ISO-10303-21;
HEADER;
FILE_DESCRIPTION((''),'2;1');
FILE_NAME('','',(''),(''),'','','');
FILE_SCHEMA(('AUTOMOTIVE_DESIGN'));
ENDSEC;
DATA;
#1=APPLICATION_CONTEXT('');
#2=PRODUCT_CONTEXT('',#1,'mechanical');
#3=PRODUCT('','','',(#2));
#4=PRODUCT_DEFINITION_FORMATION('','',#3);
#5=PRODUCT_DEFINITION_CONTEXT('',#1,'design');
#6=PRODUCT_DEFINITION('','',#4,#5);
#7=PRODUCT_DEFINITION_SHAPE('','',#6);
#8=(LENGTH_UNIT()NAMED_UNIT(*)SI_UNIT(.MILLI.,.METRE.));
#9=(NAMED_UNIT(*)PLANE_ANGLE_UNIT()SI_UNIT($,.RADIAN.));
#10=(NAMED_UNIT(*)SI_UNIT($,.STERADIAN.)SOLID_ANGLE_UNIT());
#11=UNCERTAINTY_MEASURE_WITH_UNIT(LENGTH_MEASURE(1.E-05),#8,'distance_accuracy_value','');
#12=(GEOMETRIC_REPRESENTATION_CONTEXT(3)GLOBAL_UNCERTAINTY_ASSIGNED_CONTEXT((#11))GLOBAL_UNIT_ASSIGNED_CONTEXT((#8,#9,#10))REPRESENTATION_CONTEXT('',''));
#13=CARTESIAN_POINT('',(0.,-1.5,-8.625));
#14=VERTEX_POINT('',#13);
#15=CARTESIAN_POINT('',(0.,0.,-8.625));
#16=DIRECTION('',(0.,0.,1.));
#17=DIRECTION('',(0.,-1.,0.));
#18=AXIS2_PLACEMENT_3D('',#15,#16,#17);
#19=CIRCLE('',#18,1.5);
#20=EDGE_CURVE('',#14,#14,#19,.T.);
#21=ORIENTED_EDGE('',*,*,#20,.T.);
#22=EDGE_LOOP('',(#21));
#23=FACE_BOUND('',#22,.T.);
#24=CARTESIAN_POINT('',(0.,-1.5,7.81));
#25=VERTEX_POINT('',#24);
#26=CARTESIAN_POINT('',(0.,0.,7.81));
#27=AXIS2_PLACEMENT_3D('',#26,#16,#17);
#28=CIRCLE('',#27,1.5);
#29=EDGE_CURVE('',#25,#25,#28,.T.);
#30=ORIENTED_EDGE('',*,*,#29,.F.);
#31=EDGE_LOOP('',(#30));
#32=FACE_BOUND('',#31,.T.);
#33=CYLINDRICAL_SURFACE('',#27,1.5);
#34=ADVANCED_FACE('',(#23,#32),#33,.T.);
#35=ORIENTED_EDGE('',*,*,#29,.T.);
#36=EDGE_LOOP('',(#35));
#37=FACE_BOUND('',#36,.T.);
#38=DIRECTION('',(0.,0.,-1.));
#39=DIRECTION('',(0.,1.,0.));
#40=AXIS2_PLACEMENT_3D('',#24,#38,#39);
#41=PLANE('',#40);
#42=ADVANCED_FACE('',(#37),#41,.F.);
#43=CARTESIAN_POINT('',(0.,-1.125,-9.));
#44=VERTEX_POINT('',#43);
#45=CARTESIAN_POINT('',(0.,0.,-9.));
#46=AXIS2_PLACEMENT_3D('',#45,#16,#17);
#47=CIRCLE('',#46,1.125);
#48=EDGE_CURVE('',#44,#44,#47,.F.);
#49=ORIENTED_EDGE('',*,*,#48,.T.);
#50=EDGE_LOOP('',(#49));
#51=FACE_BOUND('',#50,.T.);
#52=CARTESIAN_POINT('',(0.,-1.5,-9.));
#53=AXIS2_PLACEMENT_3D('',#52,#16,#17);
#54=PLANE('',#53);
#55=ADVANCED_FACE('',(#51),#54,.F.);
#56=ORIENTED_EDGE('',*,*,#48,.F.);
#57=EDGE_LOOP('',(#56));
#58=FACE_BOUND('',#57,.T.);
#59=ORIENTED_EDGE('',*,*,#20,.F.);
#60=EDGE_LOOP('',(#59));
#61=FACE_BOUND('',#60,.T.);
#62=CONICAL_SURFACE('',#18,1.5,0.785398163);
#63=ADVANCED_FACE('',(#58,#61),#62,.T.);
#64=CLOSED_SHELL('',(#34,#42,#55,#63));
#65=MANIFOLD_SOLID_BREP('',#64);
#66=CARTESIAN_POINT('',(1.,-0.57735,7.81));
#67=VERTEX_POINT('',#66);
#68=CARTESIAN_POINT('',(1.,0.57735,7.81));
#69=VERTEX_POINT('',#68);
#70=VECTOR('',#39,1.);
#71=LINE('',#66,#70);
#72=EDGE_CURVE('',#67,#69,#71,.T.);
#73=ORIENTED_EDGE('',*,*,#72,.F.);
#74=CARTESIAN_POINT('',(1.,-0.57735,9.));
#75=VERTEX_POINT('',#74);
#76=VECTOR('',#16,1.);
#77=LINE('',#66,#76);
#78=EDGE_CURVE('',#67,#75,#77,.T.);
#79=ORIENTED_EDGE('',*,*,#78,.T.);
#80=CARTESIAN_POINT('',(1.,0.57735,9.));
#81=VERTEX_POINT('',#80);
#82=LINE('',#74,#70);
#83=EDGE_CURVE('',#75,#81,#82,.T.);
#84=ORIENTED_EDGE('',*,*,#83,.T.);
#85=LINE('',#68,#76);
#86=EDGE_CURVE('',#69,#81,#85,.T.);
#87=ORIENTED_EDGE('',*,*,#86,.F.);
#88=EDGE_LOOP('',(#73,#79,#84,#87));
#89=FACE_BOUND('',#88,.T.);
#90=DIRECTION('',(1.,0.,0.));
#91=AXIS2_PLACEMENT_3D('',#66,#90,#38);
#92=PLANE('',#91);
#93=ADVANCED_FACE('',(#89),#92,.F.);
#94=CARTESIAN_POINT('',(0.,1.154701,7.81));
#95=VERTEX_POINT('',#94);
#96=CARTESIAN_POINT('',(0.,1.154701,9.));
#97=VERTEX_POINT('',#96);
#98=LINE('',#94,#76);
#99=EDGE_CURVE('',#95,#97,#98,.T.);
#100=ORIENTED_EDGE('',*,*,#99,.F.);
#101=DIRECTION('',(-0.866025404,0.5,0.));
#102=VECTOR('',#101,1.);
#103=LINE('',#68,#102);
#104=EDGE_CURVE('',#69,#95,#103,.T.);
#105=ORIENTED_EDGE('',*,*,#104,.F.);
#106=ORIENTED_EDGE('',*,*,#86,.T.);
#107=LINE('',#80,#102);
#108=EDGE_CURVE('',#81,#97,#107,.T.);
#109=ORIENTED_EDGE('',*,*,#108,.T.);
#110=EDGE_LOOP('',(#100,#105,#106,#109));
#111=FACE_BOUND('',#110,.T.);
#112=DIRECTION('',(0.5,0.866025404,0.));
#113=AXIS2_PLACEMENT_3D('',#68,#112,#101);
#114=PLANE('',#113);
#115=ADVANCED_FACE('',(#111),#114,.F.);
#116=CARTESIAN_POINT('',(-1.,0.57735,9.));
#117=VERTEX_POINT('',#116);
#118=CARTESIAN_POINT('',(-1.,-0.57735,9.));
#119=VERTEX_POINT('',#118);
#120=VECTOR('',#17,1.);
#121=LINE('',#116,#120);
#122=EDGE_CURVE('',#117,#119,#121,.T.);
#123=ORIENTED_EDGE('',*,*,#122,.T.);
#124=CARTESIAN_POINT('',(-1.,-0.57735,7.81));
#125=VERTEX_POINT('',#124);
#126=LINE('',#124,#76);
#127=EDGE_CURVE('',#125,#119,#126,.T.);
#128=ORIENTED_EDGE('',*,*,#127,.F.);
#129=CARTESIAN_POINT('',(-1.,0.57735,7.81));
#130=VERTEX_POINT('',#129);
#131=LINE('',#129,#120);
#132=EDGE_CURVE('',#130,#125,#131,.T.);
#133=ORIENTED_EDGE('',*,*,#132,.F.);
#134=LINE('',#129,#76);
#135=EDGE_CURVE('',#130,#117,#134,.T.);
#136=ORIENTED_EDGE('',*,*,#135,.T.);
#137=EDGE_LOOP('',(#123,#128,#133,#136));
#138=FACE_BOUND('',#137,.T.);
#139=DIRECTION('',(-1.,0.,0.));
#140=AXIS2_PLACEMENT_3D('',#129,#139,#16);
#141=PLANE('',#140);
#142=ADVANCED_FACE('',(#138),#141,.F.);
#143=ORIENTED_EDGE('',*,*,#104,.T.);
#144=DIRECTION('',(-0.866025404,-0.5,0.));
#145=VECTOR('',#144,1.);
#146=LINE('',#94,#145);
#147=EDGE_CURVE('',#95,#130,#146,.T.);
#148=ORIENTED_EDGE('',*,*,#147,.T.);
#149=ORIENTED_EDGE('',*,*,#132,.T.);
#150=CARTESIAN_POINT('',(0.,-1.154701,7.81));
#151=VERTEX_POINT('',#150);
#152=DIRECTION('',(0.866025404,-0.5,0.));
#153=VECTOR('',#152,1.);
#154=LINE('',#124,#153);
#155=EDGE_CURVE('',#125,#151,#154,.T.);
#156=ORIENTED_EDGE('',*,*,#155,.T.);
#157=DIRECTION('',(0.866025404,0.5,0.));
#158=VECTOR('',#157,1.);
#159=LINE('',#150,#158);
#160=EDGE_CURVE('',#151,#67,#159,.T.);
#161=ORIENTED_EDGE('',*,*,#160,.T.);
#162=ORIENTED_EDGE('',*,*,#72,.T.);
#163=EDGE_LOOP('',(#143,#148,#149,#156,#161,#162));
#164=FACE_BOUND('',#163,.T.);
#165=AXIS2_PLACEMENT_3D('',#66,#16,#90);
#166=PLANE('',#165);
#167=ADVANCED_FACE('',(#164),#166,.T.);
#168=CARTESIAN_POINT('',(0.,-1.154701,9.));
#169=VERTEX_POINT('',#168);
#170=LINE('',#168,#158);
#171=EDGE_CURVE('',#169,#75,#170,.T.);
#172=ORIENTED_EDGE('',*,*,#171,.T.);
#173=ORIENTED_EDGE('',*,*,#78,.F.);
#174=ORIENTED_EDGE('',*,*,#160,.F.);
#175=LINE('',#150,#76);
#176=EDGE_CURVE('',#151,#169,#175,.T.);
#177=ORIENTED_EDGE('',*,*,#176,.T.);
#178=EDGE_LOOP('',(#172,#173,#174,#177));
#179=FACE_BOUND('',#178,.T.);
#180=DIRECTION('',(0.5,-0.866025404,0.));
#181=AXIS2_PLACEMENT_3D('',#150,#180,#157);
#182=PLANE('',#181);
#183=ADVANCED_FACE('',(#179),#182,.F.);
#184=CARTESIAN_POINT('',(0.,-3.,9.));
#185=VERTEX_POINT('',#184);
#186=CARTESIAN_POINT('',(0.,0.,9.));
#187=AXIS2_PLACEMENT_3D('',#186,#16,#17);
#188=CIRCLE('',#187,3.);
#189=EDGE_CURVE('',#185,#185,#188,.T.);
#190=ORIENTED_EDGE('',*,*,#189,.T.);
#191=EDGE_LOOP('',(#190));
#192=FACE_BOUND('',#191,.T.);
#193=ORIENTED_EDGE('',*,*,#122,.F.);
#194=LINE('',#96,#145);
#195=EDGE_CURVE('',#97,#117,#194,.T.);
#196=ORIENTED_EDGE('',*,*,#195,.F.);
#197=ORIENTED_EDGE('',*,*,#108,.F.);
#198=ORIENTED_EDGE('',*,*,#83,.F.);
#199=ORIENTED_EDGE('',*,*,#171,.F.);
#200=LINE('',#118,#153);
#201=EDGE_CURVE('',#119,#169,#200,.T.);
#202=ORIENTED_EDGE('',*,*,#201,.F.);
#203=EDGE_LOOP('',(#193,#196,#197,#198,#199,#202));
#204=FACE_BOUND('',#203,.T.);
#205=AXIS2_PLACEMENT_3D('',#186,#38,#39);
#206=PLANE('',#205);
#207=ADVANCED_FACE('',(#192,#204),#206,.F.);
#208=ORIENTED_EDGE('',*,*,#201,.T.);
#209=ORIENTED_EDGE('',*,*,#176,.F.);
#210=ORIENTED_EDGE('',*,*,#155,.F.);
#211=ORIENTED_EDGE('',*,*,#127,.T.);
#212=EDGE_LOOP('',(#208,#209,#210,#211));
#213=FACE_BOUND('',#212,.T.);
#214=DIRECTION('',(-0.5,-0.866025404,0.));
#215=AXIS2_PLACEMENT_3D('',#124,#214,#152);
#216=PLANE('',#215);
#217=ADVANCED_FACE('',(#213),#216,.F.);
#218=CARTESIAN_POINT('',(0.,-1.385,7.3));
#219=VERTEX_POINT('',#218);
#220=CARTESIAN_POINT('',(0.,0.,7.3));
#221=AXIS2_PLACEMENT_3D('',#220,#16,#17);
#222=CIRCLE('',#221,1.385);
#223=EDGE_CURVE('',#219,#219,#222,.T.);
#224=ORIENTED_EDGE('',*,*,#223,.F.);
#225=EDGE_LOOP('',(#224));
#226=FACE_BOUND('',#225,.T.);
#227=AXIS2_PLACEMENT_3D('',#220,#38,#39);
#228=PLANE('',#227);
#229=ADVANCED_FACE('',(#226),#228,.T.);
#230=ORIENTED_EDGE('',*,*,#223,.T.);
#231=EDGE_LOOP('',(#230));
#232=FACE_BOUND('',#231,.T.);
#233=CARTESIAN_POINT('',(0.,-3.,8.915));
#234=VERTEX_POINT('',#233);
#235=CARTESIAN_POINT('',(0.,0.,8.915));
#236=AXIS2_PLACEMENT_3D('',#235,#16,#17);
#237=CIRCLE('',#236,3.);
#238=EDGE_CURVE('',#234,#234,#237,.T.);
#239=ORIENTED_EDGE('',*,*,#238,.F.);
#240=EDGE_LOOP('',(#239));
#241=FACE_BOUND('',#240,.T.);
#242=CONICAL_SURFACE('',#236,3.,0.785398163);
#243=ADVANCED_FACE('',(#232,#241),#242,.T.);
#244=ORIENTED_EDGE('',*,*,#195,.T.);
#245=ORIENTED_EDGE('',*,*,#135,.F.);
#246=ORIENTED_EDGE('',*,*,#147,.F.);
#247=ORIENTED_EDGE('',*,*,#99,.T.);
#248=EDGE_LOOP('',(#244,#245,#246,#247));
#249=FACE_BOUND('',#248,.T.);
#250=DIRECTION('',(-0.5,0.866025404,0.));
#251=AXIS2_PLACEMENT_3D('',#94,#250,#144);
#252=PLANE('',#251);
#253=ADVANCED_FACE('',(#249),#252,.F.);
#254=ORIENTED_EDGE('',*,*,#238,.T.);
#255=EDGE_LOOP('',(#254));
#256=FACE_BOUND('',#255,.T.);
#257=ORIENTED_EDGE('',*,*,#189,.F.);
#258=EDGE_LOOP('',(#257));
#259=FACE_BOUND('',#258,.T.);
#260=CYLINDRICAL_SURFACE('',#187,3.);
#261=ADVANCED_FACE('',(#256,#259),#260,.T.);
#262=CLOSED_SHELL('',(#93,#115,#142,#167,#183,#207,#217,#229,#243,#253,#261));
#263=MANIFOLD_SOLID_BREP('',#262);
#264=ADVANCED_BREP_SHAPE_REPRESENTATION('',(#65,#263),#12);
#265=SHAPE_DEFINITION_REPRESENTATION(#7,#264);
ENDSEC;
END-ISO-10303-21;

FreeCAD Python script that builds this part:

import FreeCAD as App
import Part
import Sketcher
from FreeCAD import Vector
Q = App.Units.Quantity


def edges_at(feature, points):
    """Names of the edges that pass closest to the given points."""
    edges = feature.Shape.Edges
    near = lambda p: min(range(len(edges)), key=lambda i: edges[i].distToShape(Part.Vertex(*p))[0])
    return sorted({f"Edge{near(p) + 1}" for p in points})


def add_polygon(sketch, points):
    """Adds a closed chain of lines whose ends are joined by coincident constraints."""
    first, n = sketch.GeometryCount, len(points)
    for a, b in zip(points, points[1:] + points[:1]):
        sketch.addGeometry(Part.LineSegment(App.Vector(*a, 0), App.Vector(*b, 0)), False)
    for i in range(n):
        sketch.addConstraint(Sketcher.Constraint("Coincident", first + i, 2, first + (i + 1) % n, 1))

doc = App.newDocument("Part")
params = doc.addObject("Spreadsheet::Sheet", "Params")
for row, (alias, value) in enumerate([
    ("sketch1_width", "1.5 mm"),
    ("sketch1_height", "16.81 mm"),
    ("revolution_angle", "360 deg"),
    ("chamfer_size", "0.375 mm"),
    ("sketch2_width", "3 mm"),
    ("sketch2_height", "1.7 mm"),
    ("revolution2_angle", "360 deg"),
    ("pocket1_length", "1.19 mm"),
], start=1):
    params.set(f"A{row}", alias)
    params.set(f"B{row}", "=" + value)
    params.setAlias(f"B{row}", alias)

body = doc.addObject("PartDesign::Body", "Body")

# Sketch on YZ plane
sketch1 = body.newObject("Sketcher::SketchObject", "Sketch")
sketch1.AttachmentSupport = (doc.getObject("YZ_Plane"), [""])
sketch1.MapMode = "FlatFace"
add_polygon(sketch1, [(1.5, -9), (1.5, 7.8), (0, 7.8), (0, -9)])  # lines 0-3
sketch1.addConstraint(Sketcher.Constraint("Vertical", 0))
sketch1.addConstraint(Sketcher.Constraint("Horizontal", 1))
sketch1.addConstraint(Sketcher.Constraint("Vertical", 2))
sketch1.addConstraint(Sketcher.Constraint("Horizontal", 3))
sketch1.addConstraint(Sketcher.Constraint("PointOnObject", 1, 2, -2))
sketch1.addConstraint(Sketcher.Constraint("DistanceX", 1, 2, 1, 1, Q("1.5 mm")))
sketch1.addConstraint(Sketcher.Constraint("DistanceY", 2, 2, -1, 1, Q("9 mm")))
sketch1.addConstraint(Sketcher.Constraint("DistanceY", 0, 1, 0, 2, Q("16.81 mm")))
sketch1.setExpression("Constraints[9]", "Params.sketch1_width")
sketch1.setExpression("Constraints[11]", "Params.sketch1_height")
revolution = body.newObject("PartDesign::Revolution", "Revolution")
revolution.Profile = sketch1
revolution.ReferenceAxis = (sketch1, ["V_Axis"])
revolution.setExpression("Angle", "Params.revolution_angle")
doc.recompute()

chamfer = body.newObject("PartDesign::Chamfer", "Chamfer")
chamfer.Base = (revolution, edges_at(revolution, [(0, 1.5, -9)]))
chamfer.setExpression("Size", "Params.chamfer_size")
body2 = doc.addObject("PartDesign::Body", "Body001")

# Sketch on YZ plane
sketch2 = body2.newObject("Sketcher::SketchObject", "Sketch001")
sketch2.AttachmentSupport = (doc.getObject("YZ_Plane001"), [""])
sketch2.MapMode = "FlatFace"
add_polygon(sketch2, [(3, 8.91), (3, 9), (0, 9), (0, 7.3), (1.39, 7.3)])  # lines 0-4
sketch2.addConstraint(Sketcher.Constraint("Vertical", 0))
sketch2.addConstraint(Sketcher.Constraint("Horizontal", 1))
sketch2.addConstraint(Sketcher.Constraint("Vertical", 2))
sketch2.addConstraint(Sketcher.Constraint("Horizontal", 3))
sketch2.addConstraint(Sketcher.Constraint("PointOnObject", 1, 2, -2))
sketch2.addConstraint(Sketcher.Constraint("DistanceX", 1, 2, 1, 1, Q("3 mm")))
sketch2.addConstraint(Sketcher.Constraint("Angle", 4, Q("45 deg")))
sketch2.addConstraint(Sketcher.Constraint("DistanceY", 2, 2, 2, 1, Q("1.7 mm")))
sketch2.addConstraint(Sketcher.Constraint("DistanceY", -1, 1, 0, 2, Q("9 mm")))
sketch2.addConstraint(Sketcher.Constraint("DistanceX", 3, 1, 3, 2, Q("1.385 mm")))
sketch2.setExpression("Constraints[10]", "Params.sketch2_width")
sketch2.setExpression("Constraints[12]", "Params.sketch2_height")
revolution2 = body2.newObject("PartDesign::Revolution", "Revolution001")
revolution2.Profile = sketch2
revolution2.ReferenceAxis = (sketch2, ["V_Axis"])
revolution2.setExpression("Angle", "Params.revolution2_angle")

# Sketch on XY plane
sketch3 = body2.newObject("Sketcher::SketchObject", "Sketch002")
sketch3.AttachmentSupport = (doc.getObject("XY_Plane001"), [""])
sketch3.MapMode = "FlatFace"
sketch3.AttachmentOffset = App.Placement(Vector(0, 0, 9), App.Rotation())
add_polygon(sketch3, [(1, -0.6), (1, 0.6), (0, 1.2), (-1, 0.6), (-1, -0.6), (0, -1.2)])  # lines 0-5
sketch3.addConstraint(Sketcher.Constraint("Vertical", 0))
sketch3.addConstraint(Sketcher.Constraint("Vertical", 3))
sketch3.addConstraint(Sketcher.Constraint("Symmetric", 0, 2, 3, 2, -1, 1))
sketch3.addConstraint(Sketcher.Constraint("Symmetric", 1, 2, 4, 2, -1, 1))
sketch3.addConstraint(Sketcher.Constraint("PointOnObject", 1, 2, -2))
sketch3.addConstraint(Sketcher.Constraint("Parallel", 2, 5))
sketch3.addConstraint(Sketcher.Constraint("Horizontal", 0, 2, 2, 2))
sketch3.addConstraint(Sketcher.Constraint("Angle", 1, Q("150 deg")))
sketch3.addConstraint(Sketcher.Constraint("DistanceX", -1, 1, 0, 2, Q("1 mm")))
sketch3.addConstraint(Sketcher.Constraint("DistanceY", 0, 1, 0, 2, Q("1.154701 mm")))
pocket1 = body2.newObject("PartDesign::Pocket", "Pocket")
pocket1.Profile = sketch3
pocket1.setExpression("Length", "Params.pocket1_length")

doc.recompute()
